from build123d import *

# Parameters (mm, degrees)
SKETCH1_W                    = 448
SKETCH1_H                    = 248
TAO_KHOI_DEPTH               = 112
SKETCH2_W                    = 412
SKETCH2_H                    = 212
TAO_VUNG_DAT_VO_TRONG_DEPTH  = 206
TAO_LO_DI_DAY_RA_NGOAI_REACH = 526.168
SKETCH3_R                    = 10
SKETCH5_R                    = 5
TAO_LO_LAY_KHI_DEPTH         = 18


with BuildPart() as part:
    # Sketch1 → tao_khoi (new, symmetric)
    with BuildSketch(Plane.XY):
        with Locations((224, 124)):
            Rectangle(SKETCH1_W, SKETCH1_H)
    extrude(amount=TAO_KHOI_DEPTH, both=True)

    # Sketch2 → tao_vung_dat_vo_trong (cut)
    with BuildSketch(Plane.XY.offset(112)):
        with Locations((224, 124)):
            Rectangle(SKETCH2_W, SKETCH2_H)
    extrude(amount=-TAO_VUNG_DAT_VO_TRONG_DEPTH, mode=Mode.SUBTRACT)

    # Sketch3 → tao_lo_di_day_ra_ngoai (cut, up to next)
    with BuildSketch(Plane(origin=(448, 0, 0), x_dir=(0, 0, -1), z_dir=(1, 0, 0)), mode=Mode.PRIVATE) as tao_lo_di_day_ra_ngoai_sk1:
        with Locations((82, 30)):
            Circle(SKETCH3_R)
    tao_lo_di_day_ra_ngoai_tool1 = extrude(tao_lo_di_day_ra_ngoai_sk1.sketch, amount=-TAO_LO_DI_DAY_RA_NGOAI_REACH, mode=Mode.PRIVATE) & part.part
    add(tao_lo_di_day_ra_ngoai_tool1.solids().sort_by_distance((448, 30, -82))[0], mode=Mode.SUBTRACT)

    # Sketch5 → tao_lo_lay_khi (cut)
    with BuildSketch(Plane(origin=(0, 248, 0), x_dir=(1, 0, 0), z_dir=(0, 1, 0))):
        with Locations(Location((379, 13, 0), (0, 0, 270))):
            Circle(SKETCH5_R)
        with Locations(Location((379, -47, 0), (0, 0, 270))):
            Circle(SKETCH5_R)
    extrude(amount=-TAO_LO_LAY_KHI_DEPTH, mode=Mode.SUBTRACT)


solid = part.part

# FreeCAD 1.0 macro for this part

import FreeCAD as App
import Part
import Sketcher


def add_polygon(sketch, points):
    """Adds a closed chain of lines whose ends are joined by coincident constraints."""
    first, n = sketch.GeometryCount, len(points)
    for a, b in zip(points, points[1:] + points[:1]):
        sketch.addGeometry(Part.LineSegment(App.Vector(*a, 0), App.Vector(*b, 0)), False)
    for i in range(n):
        sketch.addConstraint(Sketcher.Constraint("Coincident", first + i, 2, first + (i + 1) % n, 1))

doc = App.newDocument("Part")
body = doc.addObject("PartDesign::Body", "Body")

# Sketch on XY plane
sketch1 = body.newObject("Sketcher::SketchObject", "Sketch")
sketch1.AttachmentSupport = (doc.getObject("XY_Plane"), [""])
sketch1.MapMode = "FlatFace"
add_polygon(sketch1, [(0, 248), (0, 0), (448, 0), (448, 248)])  # lines 0-3
sketch1.addConstraint([
    Sketcher.Constraint("Vertical", 0),
    Sketcher.Constraint("Horizontal", 1),
    Sketcher.Constraint("Vertical", 2),
    Sketcher.Constraint("Horizontal", 3),
    Sketcher.Constraint("Coincident", 0, 2, -1, 1),
    Sketcher.Constraint("DistanceX", 1, 1, 1, 2, 448.0),
    Sketcher.Constraint("DistanceY", 0, 2, 0, 1, 248.0),
])
pad1 = body.newObject("PartDesign::Pad", "Pad")
pad1.Profile = sketch1
pad1.Length = 224
pad1.Midplane = True

# Sketch on XY plane
sketch2 = body.newObject("Sketcher::SketchObject", "Sketch001")
sketch2.AttachmentSupport = (doc.getObject("XY_Plane"), [""])
sketch2.MapMode = "FlatFace"
sketch2.AttachmentOffset = App.Placement(App.Vector(0, 0, 112), App.Rotation())
add_polygon(sketch2, [(18, 230), (18, 18), (430, 18), (430, 230)])  # lines 0-3
sketch2.addConstraint([
    Sketcher.Constraint("Vertical", 0),
    Sketcher.Constraint("Horizontal", 1),
    Sketcher.Constraint("Vertical", 2),
    Sketcher.Constraint("Horizontal", 3),
    Sketcher.Constraint("DistanceX", 1, 1, 1, 2, 412.0),
    Sketcher.Constraint("DistanceY", 0, 2, 0, 1, 212.0),
    Sketcher.Constraint("DistanceX", -1, 1, 0, 2, 18.0),
    Sketcher.Constraint("DistanceY", -1, 1, 0, 2, 18.0),
])
pocket1 = body.newObject("PartDesign::Pocket", "Pocket")
pocket1.Profile = sketch2
pocket1.Length = 206

# Sketch on YZ plane
sketch3 = body.newObject("Sketcher::SketchObject", "Sketch002")
sketch3.AttachmentSupport = (doc.getObject("YZ_Plane"), [""])
sketch3.MapMode = "FlatFace"
sketch3.AttachmentOffset = App.Placement(App.Vector(0, 0, 448), App.Rotation())
sketch3.addGeometry(Part.Circle(App.Vector(30, -82, 0), App.Vector(0, 0, 1), 10), False)
sketch3.addConstraint([
    Sketcher.Constraint("Diameter", 0, 20.0),
    Sketcher.Constraint("DistanceX", -1, 1, 0, 3, 30.0),
    Sketcher.Constraint("DistanceY", 0, 3, -1, 1, 82.0),
])
pocket2 = body.newObject("PartDesign::Pocket", "Pocket001")
pocket2.Profile = sketch3
pocket2.Type = "UpToFirst"

# Sketch on XZ plane
sketch4 = body.newObject("Sketcher::SketchObject", "Sketch003")
sketch4.AttachmentSupport = (doc.getObject("XZ_Plane"), [""])
sketch4.MapMode = "FlatFace"
sketch4.AttachmentOffset = App.Placement(App.Vector(0, 0, -248), App.Rotation())
sketch4.addGeometry([
    Part.Circle(App.Vector(379, -13, 0), App.Vector(0, 0, 1), 5),
    Part.Circle(App.Vector(379, 47, 0), App.Vector(0, 0, 1), 5),
], False)
sketch4.addConstraint([
    Sketcher.Constraint("Equal", 0, 1),
    Sketcher.Constraint("Vertical", 0, 3, 1, 3),
    Sketcher.Constraint("Diameter", 0, 10.0),
    Sketcher.Constraint("DistanceX", -1, 1, 0, 3, 379.0),
    Sketcher.Constraint("DistanceY", 0, 3, -1, 1, 13.0),
    Sketcher.Constraint("DistanceY", -1, 1, 1, 3, 47.0),
])
pocket3 = body.newObject("PartDesign::Pocket", "Pocket002")
pocket3.Profile = sketch4
pocket3.Length = 18
pocket3.Reversed = True

doc.recompute()
